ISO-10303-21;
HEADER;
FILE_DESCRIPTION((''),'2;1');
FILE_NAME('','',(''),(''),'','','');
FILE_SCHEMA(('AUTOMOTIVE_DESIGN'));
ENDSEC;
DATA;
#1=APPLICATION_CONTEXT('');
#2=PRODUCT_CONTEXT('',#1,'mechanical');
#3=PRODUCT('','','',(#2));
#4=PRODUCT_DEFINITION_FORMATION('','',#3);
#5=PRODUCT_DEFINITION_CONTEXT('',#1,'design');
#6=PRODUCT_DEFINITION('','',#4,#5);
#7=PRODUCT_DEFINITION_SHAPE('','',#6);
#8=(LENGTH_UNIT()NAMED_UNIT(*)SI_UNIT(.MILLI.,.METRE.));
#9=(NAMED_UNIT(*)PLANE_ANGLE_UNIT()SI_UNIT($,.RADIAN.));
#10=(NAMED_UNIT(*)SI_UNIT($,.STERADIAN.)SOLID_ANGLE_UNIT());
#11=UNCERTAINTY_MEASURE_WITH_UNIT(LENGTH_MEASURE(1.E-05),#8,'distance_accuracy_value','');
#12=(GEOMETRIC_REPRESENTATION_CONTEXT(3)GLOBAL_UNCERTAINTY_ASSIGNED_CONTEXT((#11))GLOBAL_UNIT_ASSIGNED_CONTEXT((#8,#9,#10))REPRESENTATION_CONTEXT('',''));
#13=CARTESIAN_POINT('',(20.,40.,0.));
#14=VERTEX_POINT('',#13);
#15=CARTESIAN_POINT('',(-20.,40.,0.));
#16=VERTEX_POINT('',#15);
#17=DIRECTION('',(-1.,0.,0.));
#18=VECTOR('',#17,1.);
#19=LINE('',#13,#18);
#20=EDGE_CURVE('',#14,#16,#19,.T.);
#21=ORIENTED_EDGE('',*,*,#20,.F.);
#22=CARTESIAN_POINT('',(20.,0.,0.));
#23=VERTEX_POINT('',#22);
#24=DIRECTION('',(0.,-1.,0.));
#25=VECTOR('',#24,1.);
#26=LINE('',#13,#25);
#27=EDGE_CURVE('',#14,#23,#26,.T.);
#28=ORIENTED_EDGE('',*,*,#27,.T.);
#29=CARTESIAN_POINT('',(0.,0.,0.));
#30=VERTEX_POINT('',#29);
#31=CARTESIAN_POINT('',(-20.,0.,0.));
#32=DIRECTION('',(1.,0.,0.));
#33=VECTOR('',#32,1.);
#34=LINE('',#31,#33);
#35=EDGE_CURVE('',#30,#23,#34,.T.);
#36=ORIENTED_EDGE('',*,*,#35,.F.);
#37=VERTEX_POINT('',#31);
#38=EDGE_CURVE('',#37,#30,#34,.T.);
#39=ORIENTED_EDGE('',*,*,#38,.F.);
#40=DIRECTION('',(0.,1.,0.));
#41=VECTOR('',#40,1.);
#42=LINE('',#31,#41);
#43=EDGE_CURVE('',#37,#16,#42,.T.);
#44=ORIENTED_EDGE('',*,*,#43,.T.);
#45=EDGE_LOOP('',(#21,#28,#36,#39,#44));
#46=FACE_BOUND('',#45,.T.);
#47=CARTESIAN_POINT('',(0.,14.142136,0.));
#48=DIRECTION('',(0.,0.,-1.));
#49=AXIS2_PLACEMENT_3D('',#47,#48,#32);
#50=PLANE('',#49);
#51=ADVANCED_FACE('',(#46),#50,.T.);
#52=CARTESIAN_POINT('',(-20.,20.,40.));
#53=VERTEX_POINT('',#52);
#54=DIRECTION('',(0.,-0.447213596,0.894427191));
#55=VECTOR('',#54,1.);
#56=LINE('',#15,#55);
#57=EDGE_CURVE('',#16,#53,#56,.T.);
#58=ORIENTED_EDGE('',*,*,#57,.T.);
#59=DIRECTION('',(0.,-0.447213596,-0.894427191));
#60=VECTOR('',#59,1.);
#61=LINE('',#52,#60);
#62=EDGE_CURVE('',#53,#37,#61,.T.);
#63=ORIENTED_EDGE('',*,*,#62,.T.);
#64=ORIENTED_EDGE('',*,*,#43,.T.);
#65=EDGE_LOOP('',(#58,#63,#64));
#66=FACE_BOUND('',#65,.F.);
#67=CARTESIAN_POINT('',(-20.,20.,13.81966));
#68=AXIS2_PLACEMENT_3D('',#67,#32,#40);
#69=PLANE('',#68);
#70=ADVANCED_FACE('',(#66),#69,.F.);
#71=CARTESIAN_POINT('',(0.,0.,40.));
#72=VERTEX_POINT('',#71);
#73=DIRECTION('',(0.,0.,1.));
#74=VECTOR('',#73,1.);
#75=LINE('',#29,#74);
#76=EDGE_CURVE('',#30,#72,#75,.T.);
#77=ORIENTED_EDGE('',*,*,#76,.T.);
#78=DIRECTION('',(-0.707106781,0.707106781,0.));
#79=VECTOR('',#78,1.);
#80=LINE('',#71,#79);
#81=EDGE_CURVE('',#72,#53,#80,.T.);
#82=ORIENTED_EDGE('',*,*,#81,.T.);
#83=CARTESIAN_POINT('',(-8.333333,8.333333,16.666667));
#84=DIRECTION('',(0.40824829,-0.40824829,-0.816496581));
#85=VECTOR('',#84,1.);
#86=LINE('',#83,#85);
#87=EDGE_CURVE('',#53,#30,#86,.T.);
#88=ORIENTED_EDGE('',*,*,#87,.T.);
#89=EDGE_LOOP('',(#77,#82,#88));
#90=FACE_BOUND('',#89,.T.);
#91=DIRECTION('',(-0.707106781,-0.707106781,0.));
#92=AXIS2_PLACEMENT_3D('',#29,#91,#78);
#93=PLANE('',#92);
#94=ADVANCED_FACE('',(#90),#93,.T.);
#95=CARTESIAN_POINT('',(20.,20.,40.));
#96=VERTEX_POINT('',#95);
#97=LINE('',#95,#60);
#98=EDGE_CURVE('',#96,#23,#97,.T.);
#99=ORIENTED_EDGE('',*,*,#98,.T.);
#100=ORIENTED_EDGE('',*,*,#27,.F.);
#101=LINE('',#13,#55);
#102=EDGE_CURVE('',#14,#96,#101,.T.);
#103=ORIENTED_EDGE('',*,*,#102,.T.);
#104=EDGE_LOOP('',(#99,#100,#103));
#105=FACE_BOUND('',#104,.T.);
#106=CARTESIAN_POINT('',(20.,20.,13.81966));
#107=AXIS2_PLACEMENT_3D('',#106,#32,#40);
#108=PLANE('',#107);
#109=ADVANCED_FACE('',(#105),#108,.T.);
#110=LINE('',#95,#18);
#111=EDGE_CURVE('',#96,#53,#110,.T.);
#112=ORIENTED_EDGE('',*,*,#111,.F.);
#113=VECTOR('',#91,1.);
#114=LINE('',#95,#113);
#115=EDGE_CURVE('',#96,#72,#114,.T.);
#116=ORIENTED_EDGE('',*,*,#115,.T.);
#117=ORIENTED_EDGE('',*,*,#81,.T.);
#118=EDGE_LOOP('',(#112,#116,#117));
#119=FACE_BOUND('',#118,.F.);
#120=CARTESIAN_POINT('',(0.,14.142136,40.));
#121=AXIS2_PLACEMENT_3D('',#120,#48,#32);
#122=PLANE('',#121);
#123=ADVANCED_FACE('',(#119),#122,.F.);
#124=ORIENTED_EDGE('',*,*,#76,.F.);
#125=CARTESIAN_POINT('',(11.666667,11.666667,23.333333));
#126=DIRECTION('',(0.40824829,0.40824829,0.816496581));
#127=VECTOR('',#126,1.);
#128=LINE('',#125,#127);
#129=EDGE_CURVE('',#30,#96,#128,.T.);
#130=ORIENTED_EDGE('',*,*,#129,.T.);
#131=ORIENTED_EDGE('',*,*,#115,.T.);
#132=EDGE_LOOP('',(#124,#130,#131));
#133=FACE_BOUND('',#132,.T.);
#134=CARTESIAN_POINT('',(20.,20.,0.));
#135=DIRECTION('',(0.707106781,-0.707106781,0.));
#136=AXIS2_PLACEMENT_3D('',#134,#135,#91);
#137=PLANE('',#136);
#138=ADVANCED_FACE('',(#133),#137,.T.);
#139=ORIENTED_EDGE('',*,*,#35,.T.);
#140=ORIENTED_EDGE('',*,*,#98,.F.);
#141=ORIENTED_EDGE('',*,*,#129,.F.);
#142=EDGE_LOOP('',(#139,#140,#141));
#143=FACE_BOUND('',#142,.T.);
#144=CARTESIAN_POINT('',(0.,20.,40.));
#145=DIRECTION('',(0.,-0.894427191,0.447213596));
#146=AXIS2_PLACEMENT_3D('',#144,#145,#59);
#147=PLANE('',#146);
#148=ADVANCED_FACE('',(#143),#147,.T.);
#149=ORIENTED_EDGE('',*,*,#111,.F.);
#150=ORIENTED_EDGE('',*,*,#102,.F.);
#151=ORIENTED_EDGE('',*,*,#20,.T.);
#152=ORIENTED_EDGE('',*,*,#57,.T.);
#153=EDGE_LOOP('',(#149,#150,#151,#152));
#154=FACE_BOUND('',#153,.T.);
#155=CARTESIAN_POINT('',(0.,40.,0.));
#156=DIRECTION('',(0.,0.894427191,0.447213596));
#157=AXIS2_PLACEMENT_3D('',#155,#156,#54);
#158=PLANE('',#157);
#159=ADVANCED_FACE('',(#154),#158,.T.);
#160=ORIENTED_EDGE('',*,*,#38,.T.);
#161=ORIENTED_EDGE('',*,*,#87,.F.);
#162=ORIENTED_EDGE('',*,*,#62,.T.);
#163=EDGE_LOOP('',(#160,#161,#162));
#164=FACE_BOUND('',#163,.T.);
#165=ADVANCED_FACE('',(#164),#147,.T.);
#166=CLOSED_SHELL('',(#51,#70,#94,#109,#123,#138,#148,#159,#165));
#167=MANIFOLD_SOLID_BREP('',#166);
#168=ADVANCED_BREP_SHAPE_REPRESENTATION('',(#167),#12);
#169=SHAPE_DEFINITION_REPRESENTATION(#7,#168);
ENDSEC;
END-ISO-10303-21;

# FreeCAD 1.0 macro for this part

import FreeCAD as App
import Part
import Sketcher
from FreeCAD import Vector

doc = App.newDocument("Part")
body = doc.addObject("PartDesign::Body", "Body")

# Sketch on YZ plane
sketch1 = body.newObject("Sketcher::SketchObject", "Sketch")
sketch1.AttachmentSupport = (doc.getObject("YZ_Plane"), [""])
sketch1.MapMode = "FlatFace"
sketch1.addGeometry([
    Part.LineSegment(Vector(20, 40, 0), Vector(0, 0, 0)),
    Part.LineSegment(Vector(0, 0, 0), Vector(40, 0, 0)),
    Part.LineSegment(Vector(40, 0, 0), Vector(20, 40, 0)),
], False)
sketch1.addConstraint([
    Sketcher.Constraint("Coincident", 0, 2, 1, 1),
    Sketcher.Constraint("Coincident", 1, 2, 2, 1),
    Sketcher.Constraint("Coincident", 2, 2, 0, 1),
    Sketcher.Constraint("Horizontal", 1),
    Sketcher.Constraint("Coincident", 0, 2, -1, 1),
    Sketcher.Constraint("Equal", 0, 2),
    Sketcher.Constraint("DistanceX", 1, 1, 1, 2, 40.0),
    Sketcher.Constraint("DistanceY", -1, 1, 2, 2, 40.0),
])
pad1 = body.newObject("PartDesign::Pad", "Pad")
pad1.Profile = sketch1
pad1.Length = 40
pad1.Midplane = True

# Sketch on XY plane
sketch2 = body.newObject("Sketcher::SketchObject", "Sketch001")
sketch2.AttachmentSupport = (doc.getObject("XY_Plane"), [""])
sketch2.MapMode = "FlatFace"
sketch2.addGeometry([
    Part.LineSegment(Vector(20, 20, 0), Vector(0, 0, 0)),
    Part.LineSegment(Vector(0, 0, 0), Vector(-20, 20, 0)),
    Part.LineSegment(Vector(-20, 20, 0), Vector(20, 20, 0)),
], False)
sketch2.addConstraint([
    Sketcher.Constraint("Coincident", 0, 2, 1, 1),
    Sketcher.Constraint("Coincident", 1, 2, 2, 1),
    Sketcher.Constraint("Coincident", 2, 2, 0, 1),
    Sketcher.Constraint("Horizontal", 2),
    Sketcher.Constraint("Coincident", 0, 2, -1, 1),
    Sketcher.Constraint("Perpendicular", 0, 1),
    Sketcher.Constraint("Equal", 0, 1),
    Sketcher.Constraint("DistanceX", 2, 1, 2, 2, 40.0),
])
pad2 = body.newObject("PartDesign::Pad", "Pad001")
pad2.Profile = sketch2
pad2.Length = 40

doc.recompute()
